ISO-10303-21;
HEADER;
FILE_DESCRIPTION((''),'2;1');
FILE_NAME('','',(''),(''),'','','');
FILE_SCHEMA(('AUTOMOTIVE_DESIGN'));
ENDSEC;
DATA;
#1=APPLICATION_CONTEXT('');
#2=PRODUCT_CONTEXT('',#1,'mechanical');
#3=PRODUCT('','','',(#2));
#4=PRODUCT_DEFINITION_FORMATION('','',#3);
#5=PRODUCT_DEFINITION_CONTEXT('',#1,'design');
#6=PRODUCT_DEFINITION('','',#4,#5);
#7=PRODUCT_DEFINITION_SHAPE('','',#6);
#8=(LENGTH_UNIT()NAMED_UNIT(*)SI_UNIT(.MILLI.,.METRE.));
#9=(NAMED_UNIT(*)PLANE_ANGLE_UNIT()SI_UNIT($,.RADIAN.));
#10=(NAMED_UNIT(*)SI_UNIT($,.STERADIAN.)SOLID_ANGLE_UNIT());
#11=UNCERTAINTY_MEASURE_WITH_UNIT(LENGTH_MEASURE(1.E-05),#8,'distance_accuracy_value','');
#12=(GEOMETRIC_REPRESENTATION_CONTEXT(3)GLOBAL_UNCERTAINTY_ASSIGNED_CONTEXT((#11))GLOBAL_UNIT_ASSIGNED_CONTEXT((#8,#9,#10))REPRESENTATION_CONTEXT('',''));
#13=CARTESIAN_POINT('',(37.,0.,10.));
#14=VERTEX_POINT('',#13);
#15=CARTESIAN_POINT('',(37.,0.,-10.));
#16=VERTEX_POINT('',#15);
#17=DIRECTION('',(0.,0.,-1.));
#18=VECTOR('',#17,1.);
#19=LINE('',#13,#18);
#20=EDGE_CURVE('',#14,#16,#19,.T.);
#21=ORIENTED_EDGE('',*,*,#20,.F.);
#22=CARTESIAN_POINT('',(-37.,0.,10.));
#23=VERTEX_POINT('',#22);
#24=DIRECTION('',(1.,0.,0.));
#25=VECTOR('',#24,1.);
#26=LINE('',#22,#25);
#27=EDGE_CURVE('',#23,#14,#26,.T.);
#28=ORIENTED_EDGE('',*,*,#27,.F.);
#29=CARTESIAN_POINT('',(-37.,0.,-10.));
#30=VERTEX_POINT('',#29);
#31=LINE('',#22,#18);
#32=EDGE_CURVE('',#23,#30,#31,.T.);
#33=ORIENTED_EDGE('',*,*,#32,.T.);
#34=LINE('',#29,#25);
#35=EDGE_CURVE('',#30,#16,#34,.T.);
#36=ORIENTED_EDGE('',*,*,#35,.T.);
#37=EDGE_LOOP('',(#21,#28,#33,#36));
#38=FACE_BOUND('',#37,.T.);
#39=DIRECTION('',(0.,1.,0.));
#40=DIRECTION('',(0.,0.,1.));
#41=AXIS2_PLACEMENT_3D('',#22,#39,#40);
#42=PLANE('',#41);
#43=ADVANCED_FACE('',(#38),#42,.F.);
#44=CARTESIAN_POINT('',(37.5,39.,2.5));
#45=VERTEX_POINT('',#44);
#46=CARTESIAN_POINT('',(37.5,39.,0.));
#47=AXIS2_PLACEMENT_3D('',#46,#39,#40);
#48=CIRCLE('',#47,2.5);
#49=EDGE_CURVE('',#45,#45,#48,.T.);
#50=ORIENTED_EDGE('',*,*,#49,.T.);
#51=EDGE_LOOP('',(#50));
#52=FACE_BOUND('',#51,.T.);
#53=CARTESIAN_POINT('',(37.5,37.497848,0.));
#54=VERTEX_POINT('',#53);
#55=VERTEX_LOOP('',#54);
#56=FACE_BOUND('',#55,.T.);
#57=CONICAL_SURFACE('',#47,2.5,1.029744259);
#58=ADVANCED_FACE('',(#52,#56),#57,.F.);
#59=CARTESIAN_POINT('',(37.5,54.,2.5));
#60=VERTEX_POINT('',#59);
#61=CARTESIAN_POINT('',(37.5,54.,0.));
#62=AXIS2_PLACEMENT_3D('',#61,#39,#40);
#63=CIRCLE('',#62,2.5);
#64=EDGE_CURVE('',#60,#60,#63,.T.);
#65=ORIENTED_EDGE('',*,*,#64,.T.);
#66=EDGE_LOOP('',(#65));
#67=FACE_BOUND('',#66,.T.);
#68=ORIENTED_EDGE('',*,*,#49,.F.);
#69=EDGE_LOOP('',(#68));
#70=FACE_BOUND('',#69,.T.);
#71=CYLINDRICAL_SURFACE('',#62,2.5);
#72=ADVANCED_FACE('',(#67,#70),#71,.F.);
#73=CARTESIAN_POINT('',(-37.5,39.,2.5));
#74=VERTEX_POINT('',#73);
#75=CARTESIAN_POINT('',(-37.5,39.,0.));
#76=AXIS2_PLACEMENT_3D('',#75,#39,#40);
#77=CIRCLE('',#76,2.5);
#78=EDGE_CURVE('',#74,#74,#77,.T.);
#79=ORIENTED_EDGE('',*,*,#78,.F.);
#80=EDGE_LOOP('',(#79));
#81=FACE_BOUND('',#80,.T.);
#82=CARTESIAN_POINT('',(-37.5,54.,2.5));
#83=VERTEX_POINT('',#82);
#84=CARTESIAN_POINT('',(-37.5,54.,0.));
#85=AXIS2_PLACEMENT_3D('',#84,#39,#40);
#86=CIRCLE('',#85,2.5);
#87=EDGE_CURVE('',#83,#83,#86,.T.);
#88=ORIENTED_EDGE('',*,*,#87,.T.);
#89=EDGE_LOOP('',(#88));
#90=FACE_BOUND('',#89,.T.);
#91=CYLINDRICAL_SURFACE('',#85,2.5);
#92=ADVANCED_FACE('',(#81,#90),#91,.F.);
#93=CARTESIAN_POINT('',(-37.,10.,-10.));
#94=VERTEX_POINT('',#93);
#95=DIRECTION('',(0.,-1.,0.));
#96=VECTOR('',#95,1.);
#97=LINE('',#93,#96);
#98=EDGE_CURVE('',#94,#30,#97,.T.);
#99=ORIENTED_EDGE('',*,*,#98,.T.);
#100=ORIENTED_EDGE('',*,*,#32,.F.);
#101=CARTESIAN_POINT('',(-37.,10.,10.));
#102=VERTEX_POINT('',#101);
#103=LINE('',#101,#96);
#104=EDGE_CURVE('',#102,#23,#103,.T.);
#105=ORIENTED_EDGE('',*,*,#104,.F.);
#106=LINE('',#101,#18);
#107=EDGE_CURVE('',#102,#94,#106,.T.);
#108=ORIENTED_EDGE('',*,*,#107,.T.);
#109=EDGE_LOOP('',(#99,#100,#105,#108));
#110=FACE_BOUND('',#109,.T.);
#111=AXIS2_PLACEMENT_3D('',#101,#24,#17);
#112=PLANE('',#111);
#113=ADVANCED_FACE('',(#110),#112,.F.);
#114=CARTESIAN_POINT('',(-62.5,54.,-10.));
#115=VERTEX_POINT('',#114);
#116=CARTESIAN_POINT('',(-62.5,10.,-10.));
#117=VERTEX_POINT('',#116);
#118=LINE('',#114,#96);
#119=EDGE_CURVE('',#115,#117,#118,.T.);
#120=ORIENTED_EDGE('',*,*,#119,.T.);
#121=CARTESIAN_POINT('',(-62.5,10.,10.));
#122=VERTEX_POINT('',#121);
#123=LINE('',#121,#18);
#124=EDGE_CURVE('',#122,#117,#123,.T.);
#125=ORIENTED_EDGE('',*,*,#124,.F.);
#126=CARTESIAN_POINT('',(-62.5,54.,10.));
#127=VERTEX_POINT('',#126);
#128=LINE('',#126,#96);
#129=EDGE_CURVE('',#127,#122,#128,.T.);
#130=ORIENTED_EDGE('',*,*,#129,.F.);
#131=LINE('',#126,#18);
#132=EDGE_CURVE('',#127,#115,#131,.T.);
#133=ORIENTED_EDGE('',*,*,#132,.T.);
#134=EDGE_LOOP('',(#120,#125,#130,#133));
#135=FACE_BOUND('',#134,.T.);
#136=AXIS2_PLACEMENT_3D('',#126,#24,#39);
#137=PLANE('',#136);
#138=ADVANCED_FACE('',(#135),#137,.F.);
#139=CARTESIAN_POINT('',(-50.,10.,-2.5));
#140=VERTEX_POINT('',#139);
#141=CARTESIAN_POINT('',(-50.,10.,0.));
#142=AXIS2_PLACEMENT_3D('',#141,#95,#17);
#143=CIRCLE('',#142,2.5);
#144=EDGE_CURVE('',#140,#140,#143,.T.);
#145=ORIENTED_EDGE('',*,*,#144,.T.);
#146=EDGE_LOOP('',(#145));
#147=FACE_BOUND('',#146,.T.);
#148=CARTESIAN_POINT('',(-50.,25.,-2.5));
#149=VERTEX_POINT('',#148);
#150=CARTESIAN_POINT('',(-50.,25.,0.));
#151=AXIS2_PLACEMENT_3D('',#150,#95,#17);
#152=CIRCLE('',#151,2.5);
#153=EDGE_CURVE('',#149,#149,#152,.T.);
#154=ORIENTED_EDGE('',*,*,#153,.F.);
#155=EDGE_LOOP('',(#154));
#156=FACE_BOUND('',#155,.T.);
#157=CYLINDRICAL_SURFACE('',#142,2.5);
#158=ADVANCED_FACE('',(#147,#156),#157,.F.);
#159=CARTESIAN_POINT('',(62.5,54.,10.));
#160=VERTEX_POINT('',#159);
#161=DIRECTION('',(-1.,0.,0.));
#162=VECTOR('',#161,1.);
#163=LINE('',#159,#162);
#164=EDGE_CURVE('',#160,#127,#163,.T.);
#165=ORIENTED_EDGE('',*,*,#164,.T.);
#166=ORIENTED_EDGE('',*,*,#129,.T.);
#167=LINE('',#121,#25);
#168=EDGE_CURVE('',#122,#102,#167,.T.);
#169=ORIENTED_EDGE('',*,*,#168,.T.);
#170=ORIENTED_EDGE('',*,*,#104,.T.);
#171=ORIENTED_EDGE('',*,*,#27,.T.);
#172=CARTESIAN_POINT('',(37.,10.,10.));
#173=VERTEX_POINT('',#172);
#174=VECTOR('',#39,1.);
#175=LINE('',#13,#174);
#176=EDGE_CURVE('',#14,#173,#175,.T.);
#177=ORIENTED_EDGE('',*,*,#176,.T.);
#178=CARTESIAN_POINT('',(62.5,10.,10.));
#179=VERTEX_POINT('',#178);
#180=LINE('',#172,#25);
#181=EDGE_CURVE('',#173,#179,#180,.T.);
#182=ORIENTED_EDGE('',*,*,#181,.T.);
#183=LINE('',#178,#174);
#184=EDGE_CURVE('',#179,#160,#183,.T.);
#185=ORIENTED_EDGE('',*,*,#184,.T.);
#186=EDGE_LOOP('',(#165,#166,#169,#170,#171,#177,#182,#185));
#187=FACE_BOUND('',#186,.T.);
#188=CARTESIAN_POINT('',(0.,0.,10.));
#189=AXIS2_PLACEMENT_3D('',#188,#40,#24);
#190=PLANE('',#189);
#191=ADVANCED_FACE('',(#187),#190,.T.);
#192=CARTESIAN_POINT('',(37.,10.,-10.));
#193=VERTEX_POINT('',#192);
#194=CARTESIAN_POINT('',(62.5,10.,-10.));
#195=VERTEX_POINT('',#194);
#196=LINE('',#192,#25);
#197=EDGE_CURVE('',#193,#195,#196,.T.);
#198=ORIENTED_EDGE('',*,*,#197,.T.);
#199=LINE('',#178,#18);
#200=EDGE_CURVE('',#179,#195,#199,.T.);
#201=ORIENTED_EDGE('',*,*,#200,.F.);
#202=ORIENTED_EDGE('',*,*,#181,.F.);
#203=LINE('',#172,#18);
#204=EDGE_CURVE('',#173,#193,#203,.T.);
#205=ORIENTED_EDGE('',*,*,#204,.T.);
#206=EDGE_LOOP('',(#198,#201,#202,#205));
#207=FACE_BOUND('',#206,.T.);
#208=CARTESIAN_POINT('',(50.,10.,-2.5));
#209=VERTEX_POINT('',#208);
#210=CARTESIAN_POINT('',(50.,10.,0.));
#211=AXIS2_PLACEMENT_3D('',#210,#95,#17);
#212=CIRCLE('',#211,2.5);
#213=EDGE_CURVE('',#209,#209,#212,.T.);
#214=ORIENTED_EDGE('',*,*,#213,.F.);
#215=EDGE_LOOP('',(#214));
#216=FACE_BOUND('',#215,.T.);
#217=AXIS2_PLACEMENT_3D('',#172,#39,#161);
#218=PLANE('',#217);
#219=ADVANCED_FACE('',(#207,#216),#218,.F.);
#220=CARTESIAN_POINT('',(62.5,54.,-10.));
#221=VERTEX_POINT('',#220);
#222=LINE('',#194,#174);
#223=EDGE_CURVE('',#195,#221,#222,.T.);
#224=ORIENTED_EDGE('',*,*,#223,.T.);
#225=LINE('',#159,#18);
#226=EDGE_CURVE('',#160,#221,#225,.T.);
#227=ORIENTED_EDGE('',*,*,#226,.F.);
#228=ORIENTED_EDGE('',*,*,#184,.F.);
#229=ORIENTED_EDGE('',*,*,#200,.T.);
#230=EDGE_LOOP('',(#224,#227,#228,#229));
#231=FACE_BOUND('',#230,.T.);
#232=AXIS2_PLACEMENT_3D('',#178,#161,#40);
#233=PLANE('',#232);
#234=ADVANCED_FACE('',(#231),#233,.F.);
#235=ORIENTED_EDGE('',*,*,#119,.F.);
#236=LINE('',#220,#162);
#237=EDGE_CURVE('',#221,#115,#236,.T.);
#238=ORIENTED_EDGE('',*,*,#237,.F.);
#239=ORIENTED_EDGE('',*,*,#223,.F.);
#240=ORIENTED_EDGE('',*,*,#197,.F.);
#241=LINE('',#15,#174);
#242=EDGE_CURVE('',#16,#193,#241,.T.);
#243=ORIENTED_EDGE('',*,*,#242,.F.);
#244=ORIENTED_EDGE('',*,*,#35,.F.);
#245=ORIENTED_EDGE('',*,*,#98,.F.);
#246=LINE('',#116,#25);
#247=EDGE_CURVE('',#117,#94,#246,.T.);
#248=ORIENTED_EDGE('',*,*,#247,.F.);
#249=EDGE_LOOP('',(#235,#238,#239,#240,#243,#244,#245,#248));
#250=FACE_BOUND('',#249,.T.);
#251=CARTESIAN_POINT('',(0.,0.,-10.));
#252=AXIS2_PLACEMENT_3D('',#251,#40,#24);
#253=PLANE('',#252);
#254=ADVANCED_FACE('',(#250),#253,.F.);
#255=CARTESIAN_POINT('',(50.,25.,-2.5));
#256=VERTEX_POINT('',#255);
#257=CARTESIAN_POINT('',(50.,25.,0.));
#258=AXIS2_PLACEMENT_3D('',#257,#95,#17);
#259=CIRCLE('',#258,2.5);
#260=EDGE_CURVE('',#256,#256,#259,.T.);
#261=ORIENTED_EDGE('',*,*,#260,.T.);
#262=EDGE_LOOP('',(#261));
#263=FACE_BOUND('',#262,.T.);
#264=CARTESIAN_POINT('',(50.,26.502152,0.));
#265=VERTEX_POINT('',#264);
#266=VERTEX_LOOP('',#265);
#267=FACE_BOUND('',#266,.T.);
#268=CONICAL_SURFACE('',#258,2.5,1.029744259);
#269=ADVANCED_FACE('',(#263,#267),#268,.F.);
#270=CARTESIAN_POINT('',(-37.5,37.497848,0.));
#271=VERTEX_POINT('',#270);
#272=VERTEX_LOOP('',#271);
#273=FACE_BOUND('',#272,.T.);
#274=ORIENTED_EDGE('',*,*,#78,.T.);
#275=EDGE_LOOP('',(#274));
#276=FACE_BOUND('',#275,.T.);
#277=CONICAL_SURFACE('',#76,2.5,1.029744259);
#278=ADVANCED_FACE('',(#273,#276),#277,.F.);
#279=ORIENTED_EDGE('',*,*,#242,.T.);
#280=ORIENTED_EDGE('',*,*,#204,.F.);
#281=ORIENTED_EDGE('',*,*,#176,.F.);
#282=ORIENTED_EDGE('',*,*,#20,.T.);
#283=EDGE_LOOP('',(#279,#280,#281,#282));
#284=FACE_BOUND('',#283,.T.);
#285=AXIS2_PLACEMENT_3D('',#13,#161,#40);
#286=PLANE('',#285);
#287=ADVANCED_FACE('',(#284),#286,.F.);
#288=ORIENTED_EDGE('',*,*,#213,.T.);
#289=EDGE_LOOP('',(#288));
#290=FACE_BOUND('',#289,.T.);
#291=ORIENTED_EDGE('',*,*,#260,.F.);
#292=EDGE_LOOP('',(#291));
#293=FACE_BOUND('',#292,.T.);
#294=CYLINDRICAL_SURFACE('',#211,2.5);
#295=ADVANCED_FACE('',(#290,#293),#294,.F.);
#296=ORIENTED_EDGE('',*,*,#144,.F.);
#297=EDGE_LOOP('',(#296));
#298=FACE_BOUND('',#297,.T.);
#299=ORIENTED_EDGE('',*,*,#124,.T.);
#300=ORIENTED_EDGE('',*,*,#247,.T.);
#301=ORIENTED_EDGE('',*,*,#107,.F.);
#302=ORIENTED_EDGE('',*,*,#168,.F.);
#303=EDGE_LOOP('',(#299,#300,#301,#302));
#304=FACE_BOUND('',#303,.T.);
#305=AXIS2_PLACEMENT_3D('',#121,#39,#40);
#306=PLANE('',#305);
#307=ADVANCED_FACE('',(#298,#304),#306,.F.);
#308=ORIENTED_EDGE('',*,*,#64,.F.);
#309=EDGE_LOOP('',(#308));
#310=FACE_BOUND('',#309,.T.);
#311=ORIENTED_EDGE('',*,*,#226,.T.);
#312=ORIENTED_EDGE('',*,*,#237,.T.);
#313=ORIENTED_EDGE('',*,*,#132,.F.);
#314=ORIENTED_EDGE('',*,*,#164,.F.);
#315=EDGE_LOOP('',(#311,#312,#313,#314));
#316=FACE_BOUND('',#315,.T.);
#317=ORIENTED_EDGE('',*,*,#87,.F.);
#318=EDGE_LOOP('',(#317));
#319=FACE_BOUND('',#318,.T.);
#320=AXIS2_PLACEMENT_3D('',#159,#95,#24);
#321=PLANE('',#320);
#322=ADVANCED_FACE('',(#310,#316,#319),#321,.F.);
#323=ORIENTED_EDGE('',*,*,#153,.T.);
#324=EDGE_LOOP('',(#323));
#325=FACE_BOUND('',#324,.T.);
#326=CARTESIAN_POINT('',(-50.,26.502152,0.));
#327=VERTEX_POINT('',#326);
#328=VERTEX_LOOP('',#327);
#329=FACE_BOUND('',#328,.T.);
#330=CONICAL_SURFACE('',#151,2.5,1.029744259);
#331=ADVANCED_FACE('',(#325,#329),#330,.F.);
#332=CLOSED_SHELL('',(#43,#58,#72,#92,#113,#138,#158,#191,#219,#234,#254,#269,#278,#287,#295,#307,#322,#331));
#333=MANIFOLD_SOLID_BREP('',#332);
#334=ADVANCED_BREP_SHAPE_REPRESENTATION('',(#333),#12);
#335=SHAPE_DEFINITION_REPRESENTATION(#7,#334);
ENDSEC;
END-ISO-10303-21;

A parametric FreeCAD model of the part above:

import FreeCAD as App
import Part
import Sketcher
from FreeCAD import Vector
Q = App.Units.Quantity


def add_polygon(sketch, points):
    """Adds a closed chain of lines whose ends are joined by coincident constraints."""
    first, n = sketch.GeometryCount, len(points)
    for a, b in zip(points, points[1:] + points[:1]):
        sketch.addGeometry(Part.LineSegment(App.Vector(*a, 0), App.Vector(*b, 0)), False)
    for i in range(n):
        sketch.addConstraint(Sketcher.Constraint("Coincident", first + i, 2, first + (i + 1) % n, 1))

doc = App.newDocument("Part")
body = doc.addObject("PartDesign::Body", "Body")

# Sketch on XY plane
sketch1 = body.newObject("Sketcher::SketchObject", "Sketch")
sketch1.AttachmentSupport = (doc.getObject("XY_Plane"), [""])
sketch1.MapMode = "FlatFace"
add_polygon(sketch1, [(-37, 0), (37, 0), (37, 10), (62, 10), (62, 54), (-62, 54), (-62, 10), (-37, 10)])  # lines 0-7
sketch1.addConstraint(Sketcher.Constraint("Horizontal", 0))
sketch1.addConstraint(Sketcher.Constraint("Vertical", 1))
sketch1.addConstraint(Sketcher.Constraint("Horizontal", 2))
sketch1.addConstraint(Sketcher.Constraint("Vertical", 3))
sketch1.addConstraint(Sketcher.Constraint("Horizontal", 4))
sketch1.addConstraint(Sketcher.Constraint("Vertical", 5))
sketch1.addConstraint(Sketcher.Constraint("Horizontal", 6))
sketch1.addConstraint(Sketcher.Constraint("Vertical", 7))
sketch1.addConstraint(Sketcher.Constraint("Symmetric", 0, 2, 7, 2, -1, 1))
sketch1.addConstraint(Sketcher.Constraint("Symmetric", 2, 2, 5, 2, -2))
sketch1.addConstraint(Sketcher.Constraint("DistanceX", 0, 1, 0, 2, Q("74 mm")))
sketch1.addConstraint(Sketcher.Constraint("DistanceX", 4, 2, 4, 1, Q("125 mm")))
sketch1.addConstraint(Sketcher.Constraint("DistanceY", 1, 1, 1, 2, Q("10 mm")))
sketch1.addConstraint(Sketcher.Constraint("DistanceY", 3, 1, 3, 2, Q("44 mm")))
pad1 = body.newObject("PartDesign::Pad", "Pad")
pad1.Profile = sketch1
pad1.Length = 20
pad1.Midplane = True

# Sketch on XZ plane
sketch2 = body.newObject("Sketcher::SketchObject", "Sketch001")
sketch2.AttachmentSupport = (doc.getObject("XZ_Plane"), [""])
sketch2.MapMode = "FlatFace"
sketch2.AttachmentOffset = App.Placement(Vector(0, 0, -10), App.Rotation())
sketch2.addGeometry(Part.Circle(Vector(-50, 0, 0), Vector(0, 0, 1), 2.5), False)
sketch2.addGeometry(Part.Circle(Vector(50, 0, 0), Vector(0, 0, 1), 2.5), False)
sketch2.addConstraint(Sketcher.Constraint("Equal", 0, 1))
sketch2.addConstraint(Sketcher.Constraint("Symmetric", 0, 3, 1, 3, -1, 1))
sketch2.addConstraint(Sketcher.Constraint("PointOnObject", 0, 3, -1))
sketch2.addConstraint(Sketcher.Constraint("Diameter", 0, Q("5 mm")))
sketch2.addConstraint(Sketcher.Constraint("DistanceX", 0, 3, -1, 1, Q("50 mm")))
doc.recompute()
hole = body.newObject("PartDesign::Hole", "Hole")
hole.Profile = sketch2
hole.ThreadType = "None"
hole.Diameter = 5
hole.DepthType = "Dimension"
hole.Depth = 15
hole.DrillPoint = "Angled"
hole.DrillPointAngle = 118

# Sketch on XZ plane
sketch3 = body.newObject("Sketcher::SketchObject", "Sketch002")
sketch3.AttachmentSupport = (doc.getObject("XZ_Plane"), [""])
sketch3.MapMode = "FlatFace"
sketch3.AttachmentOffset = App.Placement(Vector(0, 0, -54), App.Rotation())
sketch3.addGeometry(Part.Circle(Vector(-37.5, 0, 0), Vector(0, 0, 1), 2.5), False)
sketch3.addGeometry(Part.Circle(Vector(37.5, 0, 0), Vector(0, 0, 1), 2.5), False)
sketch3.addConstraint(Sketcher.Constraint("Equal", 0, 1))
sketch3.addConstraint(Sketcher.Constraint("Symmetric", 0, 3, 1, 3, -1, 1))
sketch3.addConstraint(Sketcher.Constraint("PointOnObject", 0, 3, -1))
sketch3.addConstraint(Sketcher.Constraint("Diameter", 0, Q("5 mm")))
sketch3.addConstraint(Sketcher.Constraint("DistanceX", 0, 3, 1, 3, Q("75 mm")))
doc.recompute()
hole2 = body.newObject("PartDesign::Hole", "Hole001")
hole2.Profile = sketch3
hole2.ThreadType = "None"
hole2.Diameter = 5
hole2.DepthType = "Dimension"
hole2.Depth = 15
hole2.DrillPoint = "Angled"
hole2.DrillPointAngle = 118
hole2.Reversed = True

doc.recompute()
